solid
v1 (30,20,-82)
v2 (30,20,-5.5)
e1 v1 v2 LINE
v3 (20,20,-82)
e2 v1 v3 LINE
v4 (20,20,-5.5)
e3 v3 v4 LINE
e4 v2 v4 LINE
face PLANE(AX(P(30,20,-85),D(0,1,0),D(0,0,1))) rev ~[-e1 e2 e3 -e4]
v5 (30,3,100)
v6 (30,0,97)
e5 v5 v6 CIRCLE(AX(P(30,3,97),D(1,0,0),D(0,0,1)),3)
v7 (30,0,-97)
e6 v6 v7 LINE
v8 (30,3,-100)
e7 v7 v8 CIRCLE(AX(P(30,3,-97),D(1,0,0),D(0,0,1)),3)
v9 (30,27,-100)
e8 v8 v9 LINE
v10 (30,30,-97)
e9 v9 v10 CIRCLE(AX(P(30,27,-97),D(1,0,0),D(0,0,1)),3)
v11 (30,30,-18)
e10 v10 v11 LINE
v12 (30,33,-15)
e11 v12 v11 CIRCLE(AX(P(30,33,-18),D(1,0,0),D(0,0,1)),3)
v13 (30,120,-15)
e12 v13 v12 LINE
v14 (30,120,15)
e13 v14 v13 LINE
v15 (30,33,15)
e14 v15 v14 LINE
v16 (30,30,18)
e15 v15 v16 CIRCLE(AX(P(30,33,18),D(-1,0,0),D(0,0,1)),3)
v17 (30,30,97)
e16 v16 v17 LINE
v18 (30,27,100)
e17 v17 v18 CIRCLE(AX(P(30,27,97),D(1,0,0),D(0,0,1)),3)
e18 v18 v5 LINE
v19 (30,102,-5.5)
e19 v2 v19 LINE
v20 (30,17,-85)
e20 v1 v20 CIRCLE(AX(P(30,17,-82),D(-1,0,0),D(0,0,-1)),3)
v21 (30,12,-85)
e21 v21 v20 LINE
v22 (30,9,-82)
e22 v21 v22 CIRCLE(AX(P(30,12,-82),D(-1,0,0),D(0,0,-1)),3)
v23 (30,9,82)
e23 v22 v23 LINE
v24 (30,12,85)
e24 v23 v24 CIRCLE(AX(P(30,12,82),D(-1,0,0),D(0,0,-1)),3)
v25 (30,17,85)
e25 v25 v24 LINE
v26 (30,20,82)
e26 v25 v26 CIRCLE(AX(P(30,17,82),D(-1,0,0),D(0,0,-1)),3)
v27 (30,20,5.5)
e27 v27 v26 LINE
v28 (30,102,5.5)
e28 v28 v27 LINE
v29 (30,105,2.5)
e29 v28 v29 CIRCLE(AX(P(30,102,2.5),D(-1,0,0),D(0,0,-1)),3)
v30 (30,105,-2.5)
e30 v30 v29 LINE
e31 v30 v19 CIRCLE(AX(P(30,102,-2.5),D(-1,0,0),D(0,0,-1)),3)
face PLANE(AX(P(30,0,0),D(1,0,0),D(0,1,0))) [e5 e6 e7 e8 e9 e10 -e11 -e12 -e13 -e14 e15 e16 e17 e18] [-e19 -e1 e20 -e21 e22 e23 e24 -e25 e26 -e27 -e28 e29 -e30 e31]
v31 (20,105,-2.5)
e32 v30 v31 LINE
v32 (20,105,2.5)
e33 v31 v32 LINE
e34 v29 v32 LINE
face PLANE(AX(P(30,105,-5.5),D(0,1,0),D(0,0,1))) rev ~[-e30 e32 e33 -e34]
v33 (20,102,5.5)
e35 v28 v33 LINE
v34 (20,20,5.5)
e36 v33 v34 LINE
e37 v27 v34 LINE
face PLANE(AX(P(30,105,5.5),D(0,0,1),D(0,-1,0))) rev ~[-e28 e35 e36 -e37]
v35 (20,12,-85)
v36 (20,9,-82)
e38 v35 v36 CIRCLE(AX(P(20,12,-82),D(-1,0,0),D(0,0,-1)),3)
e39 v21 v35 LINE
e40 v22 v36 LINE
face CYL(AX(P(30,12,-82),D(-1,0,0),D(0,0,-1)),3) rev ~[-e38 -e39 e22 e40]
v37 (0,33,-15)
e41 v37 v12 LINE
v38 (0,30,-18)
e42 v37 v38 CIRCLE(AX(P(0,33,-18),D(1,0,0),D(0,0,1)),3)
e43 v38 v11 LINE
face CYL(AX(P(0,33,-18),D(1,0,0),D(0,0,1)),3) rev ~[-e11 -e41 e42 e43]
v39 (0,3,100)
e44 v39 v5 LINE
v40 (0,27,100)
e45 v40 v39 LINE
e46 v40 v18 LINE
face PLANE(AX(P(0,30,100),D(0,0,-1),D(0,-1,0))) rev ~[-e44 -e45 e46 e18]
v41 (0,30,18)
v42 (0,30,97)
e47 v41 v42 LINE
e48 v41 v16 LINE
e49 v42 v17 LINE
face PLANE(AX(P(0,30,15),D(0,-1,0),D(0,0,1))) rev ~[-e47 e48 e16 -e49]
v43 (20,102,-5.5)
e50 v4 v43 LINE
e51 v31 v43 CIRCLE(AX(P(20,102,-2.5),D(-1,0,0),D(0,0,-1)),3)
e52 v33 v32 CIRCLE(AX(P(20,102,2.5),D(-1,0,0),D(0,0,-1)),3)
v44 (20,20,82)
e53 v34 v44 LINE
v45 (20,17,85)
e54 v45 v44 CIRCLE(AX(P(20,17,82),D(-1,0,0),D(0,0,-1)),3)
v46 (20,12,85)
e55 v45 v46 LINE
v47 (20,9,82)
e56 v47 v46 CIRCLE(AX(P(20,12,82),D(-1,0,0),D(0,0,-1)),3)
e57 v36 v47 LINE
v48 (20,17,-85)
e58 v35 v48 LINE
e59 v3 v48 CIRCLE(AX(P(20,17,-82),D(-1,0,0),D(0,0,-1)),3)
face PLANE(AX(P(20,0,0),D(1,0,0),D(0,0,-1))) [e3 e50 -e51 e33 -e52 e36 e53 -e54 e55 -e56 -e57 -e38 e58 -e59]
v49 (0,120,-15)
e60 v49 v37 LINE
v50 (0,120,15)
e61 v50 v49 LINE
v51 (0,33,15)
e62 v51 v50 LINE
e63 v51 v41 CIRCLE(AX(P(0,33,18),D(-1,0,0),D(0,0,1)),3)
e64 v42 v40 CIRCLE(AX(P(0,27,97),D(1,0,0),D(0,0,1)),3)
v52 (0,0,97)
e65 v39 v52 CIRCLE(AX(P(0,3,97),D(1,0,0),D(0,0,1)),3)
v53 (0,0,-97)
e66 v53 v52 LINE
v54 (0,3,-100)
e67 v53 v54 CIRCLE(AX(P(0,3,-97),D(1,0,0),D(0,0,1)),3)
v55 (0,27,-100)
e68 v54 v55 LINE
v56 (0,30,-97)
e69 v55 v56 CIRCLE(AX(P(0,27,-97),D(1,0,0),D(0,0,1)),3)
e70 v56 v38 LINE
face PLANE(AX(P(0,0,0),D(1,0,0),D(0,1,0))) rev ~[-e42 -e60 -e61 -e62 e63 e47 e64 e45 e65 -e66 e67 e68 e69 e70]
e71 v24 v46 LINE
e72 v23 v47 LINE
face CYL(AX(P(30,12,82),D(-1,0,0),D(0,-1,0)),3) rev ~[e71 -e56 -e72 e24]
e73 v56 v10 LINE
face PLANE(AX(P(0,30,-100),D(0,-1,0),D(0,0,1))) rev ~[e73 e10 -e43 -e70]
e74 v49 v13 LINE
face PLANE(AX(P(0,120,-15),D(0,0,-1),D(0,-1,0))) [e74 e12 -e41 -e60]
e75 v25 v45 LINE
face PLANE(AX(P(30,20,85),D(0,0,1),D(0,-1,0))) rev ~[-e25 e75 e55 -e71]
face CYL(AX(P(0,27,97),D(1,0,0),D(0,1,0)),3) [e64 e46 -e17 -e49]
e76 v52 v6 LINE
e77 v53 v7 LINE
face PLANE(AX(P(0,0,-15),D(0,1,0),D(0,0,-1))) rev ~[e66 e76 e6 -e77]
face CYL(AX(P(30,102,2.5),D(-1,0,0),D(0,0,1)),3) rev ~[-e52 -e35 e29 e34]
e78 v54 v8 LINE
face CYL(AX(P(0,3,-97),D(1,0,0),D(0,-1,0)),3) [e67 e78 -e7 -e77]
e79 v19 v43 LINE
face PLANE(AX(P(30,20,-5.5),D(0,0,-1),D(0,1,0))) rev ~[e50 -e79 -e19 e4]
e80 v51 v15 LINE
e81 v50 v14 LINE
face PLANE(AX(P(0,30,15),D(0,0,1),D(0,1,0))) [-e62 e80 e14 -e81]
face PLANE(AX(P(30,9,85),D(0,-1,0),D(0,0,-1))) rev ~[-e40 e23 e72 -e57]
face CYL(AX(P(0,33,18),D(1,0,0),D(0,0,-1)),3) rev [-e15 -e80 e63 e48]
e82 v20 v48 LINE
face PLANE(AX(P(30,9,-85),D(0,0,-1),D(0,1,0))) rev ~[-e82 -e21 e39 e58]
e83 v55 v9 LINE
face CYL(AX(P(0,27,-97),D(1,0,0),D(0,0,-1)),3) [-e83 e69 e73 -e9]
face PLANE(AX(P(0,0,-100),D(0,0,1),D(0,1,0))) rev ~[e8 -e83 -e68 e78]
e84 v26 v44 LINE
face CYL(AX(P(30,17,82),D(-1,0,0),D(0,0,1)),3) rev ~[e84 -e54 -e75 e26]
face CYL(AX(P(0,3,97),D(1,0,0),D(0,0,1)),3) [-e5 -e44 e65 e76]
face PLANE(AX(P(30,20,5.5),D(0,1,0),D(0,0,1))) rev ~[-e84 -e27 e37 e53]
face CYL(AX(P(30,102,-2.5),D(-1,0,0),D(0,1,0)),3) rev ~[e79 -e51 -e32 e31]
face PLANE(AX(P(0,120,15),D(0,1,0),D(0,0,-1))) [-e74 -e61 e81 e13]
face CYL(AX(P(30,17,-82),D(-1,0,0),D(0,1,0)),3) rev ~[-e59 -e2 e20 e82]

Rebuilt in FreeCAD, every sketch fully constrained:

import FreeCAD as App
import Part
import Sketcher

V = App.Vector
Q = App.Units.Quantity


def edges_at(feature, points):
    """Names of the edges that pass closest to the given points."""
    edges = feature.Shape.Edges
    near = lambda p: min(range(len(edges)), key=lambda i: edges[i].distToShape(Part.Vertex(*p))[0])
    return sorted({f"Edge{near(p) + 1}" for p in points})

doc = App.newDocument("Part")
body = doc.addObject("PartDesign::Body", "Body")

# Sketch on YZ plane
sketch1 = body.newObject("Sketcher::SketchObject", "Sketch")
sketch1.AttachmentSupport = (doc.getObject("YZ_Plane"), [""])
sketch1.MapMode = "FlatFace"
sketch1.addGeometry(Part.LineSegment(V(120, 15, 0), V(30, 15, 0)), False)
sketch1.addGeometry(Part.LineSegment(V(30, 15, 0), V(30, 100, 0)), False)
sketch1.addGeometry(Part.LineSegment(V(30, 100, 0), V(0, 100, 0)), False)
sketch1.addGeometry(Part.LineSegment(V(0, 100, 0), V(0, -100, 0)), False)
sketch1.addGeometry(Part.LineSegment(V(0, -100, 0), V(30, -100, 0)), False)
sketch1.addGeometry(Part.LineSegment(V(30, -100, 0), V(30, -15, 0)), False)
sketch1.addGeometry(Part.LineSegment(V(30, -15, 0), V(120, -15, 0)), False)
sketch1.addGeometry(Part.LineSegment(V(120, -15, 0), V(120, 15, 0)), False)
sketch1.addConstraint(Sketcher.Constraint("Coincident", 0, 2, 1, 1))
sketch1.addConstraint(Sketcher.Constraint("Coincident", 1, 2, 2, 1))
sketch1.addConstraint(Sketcher.Constraint("Coincident", 2, 2, 3, 1))
sketch1.addConstraint(Sketcher.Constraint("Coincident", 3, 2, 4, 1))
sketch1.addConstraint(Sketcher.Constraint("Coincident", 4, 2, 5, 1))
sketch1.addConstraint(Sketcher.Constraint("Coincident", 5, 2, 6, 1))
sketch1.addConstraint(Sketcher.Constraint("Coincident", 6, 2, 7, 1))
sketch1.addConstraint(Sketcher.Constraint("Coincident", 7, 2, 0, 1))
sketch1.addConstraint(Sketcher.Constraint("Horizontal", 0))
sketch1.addConstraint(Sketcher.Constraint("Vertical", 1))
sketch1.addConstraint(Sketcher.Constraint("Horizontal", 2))
sketch1.addConstraint(Sketcher.Constraint("Vertical", 3))
sketch1.addConstraint(Sketcher.Constraint("Horizontal", 4))
sketch1.addConstraint(Sketcher.Constraint("Vertical", 5))
sketch1.addConstraint(Sketcher.Constraint("Horizontal", 6))
sketch1.addConstraint(Sketcher.Constraint("Vertical", 7))
sketch1.addConstraint(Sketcher.Constraint("Symmetric", 2, 2, 3, 2, -1, 1))
sketch1.addConstraint(Sketcher.Constraint("Symmetric", 0, 2, 5, 2, -1))
sketch1.addConstraint(Sketcher.Constraint("Equal", 4, 7))
sketch1.addConstraint(Sketcher.Constraint("DistanceX", 2, 2, 2, 1, Q("30 mm")))
sketch1.addConstraint(Sketcher.Constraint("DistanceY", 3, 2, 3, 1, Q("200 mm")))
sketch1.addConstraint(Sketcher.Constraint("DistanceX", -1, 1, 6, 2, Q("120 mm")))
pad1 = body.newObject("PartDesign::Pad", "Pad")
pad1.Profile = sketch1
pad1.Length = 30

# Sketch on YZ plane
sketch2 = body.newObject("Sketcher::SketchObject", "Sketch001")
sketch2.AttachmentSupport = (doc.getObject("YZ_Plane"), [""])
sketch2.MapMode = "FlatFace"
sketch2.AttachmentOffset = App.Placement(V(0, 0, 30), App.Rotation())
sketch2.addGeometry(Part.LineSegment(V(9, 85, 0), V(9, -85, 0)), False)
sketch2.addGeometry(Part.LineSegment(V(9, -85, 0), V(20, -85, 0)), False)
sketch2.addGeometry(Part.LineSegment(V(20, -85, 0), V(20, -5.5, 0)), False)
sketch2.addGeometry(Part.LineSegment(V(20, -5.5, 0), V(105, -5.5, 0)), False)
sketch2.addGeometry(Part.LineSegment(V(105, -5.5, 0), V(105, 5.5, 0)), False)
sketch2.addGeometry(Part.LineSegment(V(105, 5.5, 0), V(20, 5.5, 0)), False)
sketch2.addGeometry(Part.LineSegment(V(20, 5.5, 0), V(20, 85, 0)), False)
sketch2.addGeometry(Part.LineSegment(V(20, 85, 0), V(9, 85, 0)), False)
sketch2.addConstraint(Sketcher.Constraint("Coincident", 0, 2, 1, 1))
sketch2.addConstraint(Sketcher.Constraint("Coincident", 1, 2, 2, 1))
sketch2.addConstraint(Sketcher.Constraint("Coincident", 2, 2, 3, 1))
sketch2.addConstraint(Sketcher.Constraint("Coincident", 3, 2, 4, 1))
sketch2.addConstraint(Sketcher.Constraint("Coincident", 4, 2, 5, 1))
sketch2.addConstraint(Sketcher.Constraint("Coincident", 5, 2, 6, 1))
sketch2.addConstraint(Sketcher.Constraint("Coincident", 6, 2, 7, 1))
sketch2.addConstraint(Sketcher.Constraint("Coincident", 7, 2, 0, 1))
sketch2.addConstraint(Sketcher.Constraint("Vertical", 0))
sketch2.addConstraint(Sketcher.Constraint("Horizontal", 1))
sketch2.addConstraint(Sketcher.Constraint("Vertical", 2))
sketch2.addConstraint(Sketcher.Constraint("Horizontal", 3))
sketch2.addConstraint(Sketcher.Constraint("Vertical", 4))
sketch2.addConstraint(Sketcher.Constraint("Horizontal", 5))
sketch2.addConstraint(Sketcher.Constraint("Vertical", 6))
sketch2.addConstraint(Sketcher.Constraint("Horizontal", 7))
sketch2.addConstraint(Sketcher.Constraint("Symmetric", 2, 2, 5, 2, -1))
sketch2.addConstraint(Sketcher.Constraint("Equal", 7, 4))
sketch2.addConstraint(Sketcher.Constraint("Equal", 2, 6))
sketch2.addConstraint(Sketcher.Constraint("DistanceX", 1, 1, 1, 2, Q("11 mm")))
sketch2.addConstraint(Sketcher.Constraint("DistanceX", 3, 1, 3, 2, Q("85 mm")))
sketch2.addConstraint(Sketcher.Constraint("DistanceY", 0, 2, 0, 1, Q("170 mm")))
sketch2.addConstraint(Sketcher.Constraint("DistanceX", -1, 1, 0, 2, Q("9 mm")))
pocket1 = body.newObject("PartDesign::Pocket", "Pocket")
pocket1.Profile = sketch2
pocket1.Length = 10
doc.recompute()

fillet = body.newObject("PartDesign::Fillet", "Fillet")
fillet.Base = (pocket1, edges_at(pocket1, [(15, 30, 100)]))
fillet.Radius = 3
doc.recompute()

fillet2 = body.newObject("PartDesign::Fillet", "Fillet001")
fillet2.Base = (fillet, edges_at(fillet, [(15, 0, 100)]))
fillet2.Radius = 3
doc.recompute()

fillet3 = body.newObject("PartDesign::Fillet", "Fillet002")
fillet3.Base = (fillet2, edges_at(fillet2, [(15, 0, -100)]))
fillet3.Radius = 3
doc.recompute()

fillet4 = body.newObject("PartDesign::Fillet", "Fillet003")
fillet4.Base = (fillet3, edges_at(fillet3, [(15, 30, -100)]))
fillet4.Radius = 3
doc.recompute()

fillet5 = body.newObject("PartDesign::Fillet", "Fillet004")
fillet5.Base = (fillet4, edges_at(fillet4, [(25, 20, -85)]))
fillet5.Radius = 3
doc.recompute()

fillet6 = body.newObject("PartDesign::Fillet", "Fillet005")
fillet6.Base = (fillet5, edges_at(fillet5, [(25, 9, -85)]))
fillet6.Radius = 3
doc.recompute()

fillet7 = body.newObject("PartDesign::Fillet", "Fillet006")
fillet7.Base = (fillet6, edges_at(fillet6, [(25, 9, 85)]))
fillet7.Radius = 3
doc.recompute()

fillet8 = body.newObject("PartDesign::Fillet", "Fillet007")
fillet8.Base = (fillet7, edges_at(fillet7, [(25, 20, 85)]))
fillet8.Radius = 3
doc.recompute()

fillet9 = body.newObject("PartDesign::Fillet", "Fillet008")
fillet9.Base = (fillet8, edges_at(fillet8, [(25, 105, 5.5)]))
fillet9.Radius = 3
doc.recompute()

fillet10 = body.newObject("PartDesign::Fillet", "Fillet009")
fillet10.Base = (fillet9, edges_at(fillet9, [(25, 105, -5.5)]))
fillet10.Radius = 3
doc.recompute()

fillet11 = body.newObject("PartDesign::Fillet", "Fillet010")
fillet11.Base = (fillet10, edges_at(fillet10, [(15, 30, 15)]))
fillet11.Radius = 3
doc.recompute()

fillet12 = body.newObject("PartDesign::Fillet", "Fillet011")
fillet12.Base = (fillet11, edges_at(fillet11, [(15, 30, -15)]))
fillet12.Radius = 3

doc.recompute()
